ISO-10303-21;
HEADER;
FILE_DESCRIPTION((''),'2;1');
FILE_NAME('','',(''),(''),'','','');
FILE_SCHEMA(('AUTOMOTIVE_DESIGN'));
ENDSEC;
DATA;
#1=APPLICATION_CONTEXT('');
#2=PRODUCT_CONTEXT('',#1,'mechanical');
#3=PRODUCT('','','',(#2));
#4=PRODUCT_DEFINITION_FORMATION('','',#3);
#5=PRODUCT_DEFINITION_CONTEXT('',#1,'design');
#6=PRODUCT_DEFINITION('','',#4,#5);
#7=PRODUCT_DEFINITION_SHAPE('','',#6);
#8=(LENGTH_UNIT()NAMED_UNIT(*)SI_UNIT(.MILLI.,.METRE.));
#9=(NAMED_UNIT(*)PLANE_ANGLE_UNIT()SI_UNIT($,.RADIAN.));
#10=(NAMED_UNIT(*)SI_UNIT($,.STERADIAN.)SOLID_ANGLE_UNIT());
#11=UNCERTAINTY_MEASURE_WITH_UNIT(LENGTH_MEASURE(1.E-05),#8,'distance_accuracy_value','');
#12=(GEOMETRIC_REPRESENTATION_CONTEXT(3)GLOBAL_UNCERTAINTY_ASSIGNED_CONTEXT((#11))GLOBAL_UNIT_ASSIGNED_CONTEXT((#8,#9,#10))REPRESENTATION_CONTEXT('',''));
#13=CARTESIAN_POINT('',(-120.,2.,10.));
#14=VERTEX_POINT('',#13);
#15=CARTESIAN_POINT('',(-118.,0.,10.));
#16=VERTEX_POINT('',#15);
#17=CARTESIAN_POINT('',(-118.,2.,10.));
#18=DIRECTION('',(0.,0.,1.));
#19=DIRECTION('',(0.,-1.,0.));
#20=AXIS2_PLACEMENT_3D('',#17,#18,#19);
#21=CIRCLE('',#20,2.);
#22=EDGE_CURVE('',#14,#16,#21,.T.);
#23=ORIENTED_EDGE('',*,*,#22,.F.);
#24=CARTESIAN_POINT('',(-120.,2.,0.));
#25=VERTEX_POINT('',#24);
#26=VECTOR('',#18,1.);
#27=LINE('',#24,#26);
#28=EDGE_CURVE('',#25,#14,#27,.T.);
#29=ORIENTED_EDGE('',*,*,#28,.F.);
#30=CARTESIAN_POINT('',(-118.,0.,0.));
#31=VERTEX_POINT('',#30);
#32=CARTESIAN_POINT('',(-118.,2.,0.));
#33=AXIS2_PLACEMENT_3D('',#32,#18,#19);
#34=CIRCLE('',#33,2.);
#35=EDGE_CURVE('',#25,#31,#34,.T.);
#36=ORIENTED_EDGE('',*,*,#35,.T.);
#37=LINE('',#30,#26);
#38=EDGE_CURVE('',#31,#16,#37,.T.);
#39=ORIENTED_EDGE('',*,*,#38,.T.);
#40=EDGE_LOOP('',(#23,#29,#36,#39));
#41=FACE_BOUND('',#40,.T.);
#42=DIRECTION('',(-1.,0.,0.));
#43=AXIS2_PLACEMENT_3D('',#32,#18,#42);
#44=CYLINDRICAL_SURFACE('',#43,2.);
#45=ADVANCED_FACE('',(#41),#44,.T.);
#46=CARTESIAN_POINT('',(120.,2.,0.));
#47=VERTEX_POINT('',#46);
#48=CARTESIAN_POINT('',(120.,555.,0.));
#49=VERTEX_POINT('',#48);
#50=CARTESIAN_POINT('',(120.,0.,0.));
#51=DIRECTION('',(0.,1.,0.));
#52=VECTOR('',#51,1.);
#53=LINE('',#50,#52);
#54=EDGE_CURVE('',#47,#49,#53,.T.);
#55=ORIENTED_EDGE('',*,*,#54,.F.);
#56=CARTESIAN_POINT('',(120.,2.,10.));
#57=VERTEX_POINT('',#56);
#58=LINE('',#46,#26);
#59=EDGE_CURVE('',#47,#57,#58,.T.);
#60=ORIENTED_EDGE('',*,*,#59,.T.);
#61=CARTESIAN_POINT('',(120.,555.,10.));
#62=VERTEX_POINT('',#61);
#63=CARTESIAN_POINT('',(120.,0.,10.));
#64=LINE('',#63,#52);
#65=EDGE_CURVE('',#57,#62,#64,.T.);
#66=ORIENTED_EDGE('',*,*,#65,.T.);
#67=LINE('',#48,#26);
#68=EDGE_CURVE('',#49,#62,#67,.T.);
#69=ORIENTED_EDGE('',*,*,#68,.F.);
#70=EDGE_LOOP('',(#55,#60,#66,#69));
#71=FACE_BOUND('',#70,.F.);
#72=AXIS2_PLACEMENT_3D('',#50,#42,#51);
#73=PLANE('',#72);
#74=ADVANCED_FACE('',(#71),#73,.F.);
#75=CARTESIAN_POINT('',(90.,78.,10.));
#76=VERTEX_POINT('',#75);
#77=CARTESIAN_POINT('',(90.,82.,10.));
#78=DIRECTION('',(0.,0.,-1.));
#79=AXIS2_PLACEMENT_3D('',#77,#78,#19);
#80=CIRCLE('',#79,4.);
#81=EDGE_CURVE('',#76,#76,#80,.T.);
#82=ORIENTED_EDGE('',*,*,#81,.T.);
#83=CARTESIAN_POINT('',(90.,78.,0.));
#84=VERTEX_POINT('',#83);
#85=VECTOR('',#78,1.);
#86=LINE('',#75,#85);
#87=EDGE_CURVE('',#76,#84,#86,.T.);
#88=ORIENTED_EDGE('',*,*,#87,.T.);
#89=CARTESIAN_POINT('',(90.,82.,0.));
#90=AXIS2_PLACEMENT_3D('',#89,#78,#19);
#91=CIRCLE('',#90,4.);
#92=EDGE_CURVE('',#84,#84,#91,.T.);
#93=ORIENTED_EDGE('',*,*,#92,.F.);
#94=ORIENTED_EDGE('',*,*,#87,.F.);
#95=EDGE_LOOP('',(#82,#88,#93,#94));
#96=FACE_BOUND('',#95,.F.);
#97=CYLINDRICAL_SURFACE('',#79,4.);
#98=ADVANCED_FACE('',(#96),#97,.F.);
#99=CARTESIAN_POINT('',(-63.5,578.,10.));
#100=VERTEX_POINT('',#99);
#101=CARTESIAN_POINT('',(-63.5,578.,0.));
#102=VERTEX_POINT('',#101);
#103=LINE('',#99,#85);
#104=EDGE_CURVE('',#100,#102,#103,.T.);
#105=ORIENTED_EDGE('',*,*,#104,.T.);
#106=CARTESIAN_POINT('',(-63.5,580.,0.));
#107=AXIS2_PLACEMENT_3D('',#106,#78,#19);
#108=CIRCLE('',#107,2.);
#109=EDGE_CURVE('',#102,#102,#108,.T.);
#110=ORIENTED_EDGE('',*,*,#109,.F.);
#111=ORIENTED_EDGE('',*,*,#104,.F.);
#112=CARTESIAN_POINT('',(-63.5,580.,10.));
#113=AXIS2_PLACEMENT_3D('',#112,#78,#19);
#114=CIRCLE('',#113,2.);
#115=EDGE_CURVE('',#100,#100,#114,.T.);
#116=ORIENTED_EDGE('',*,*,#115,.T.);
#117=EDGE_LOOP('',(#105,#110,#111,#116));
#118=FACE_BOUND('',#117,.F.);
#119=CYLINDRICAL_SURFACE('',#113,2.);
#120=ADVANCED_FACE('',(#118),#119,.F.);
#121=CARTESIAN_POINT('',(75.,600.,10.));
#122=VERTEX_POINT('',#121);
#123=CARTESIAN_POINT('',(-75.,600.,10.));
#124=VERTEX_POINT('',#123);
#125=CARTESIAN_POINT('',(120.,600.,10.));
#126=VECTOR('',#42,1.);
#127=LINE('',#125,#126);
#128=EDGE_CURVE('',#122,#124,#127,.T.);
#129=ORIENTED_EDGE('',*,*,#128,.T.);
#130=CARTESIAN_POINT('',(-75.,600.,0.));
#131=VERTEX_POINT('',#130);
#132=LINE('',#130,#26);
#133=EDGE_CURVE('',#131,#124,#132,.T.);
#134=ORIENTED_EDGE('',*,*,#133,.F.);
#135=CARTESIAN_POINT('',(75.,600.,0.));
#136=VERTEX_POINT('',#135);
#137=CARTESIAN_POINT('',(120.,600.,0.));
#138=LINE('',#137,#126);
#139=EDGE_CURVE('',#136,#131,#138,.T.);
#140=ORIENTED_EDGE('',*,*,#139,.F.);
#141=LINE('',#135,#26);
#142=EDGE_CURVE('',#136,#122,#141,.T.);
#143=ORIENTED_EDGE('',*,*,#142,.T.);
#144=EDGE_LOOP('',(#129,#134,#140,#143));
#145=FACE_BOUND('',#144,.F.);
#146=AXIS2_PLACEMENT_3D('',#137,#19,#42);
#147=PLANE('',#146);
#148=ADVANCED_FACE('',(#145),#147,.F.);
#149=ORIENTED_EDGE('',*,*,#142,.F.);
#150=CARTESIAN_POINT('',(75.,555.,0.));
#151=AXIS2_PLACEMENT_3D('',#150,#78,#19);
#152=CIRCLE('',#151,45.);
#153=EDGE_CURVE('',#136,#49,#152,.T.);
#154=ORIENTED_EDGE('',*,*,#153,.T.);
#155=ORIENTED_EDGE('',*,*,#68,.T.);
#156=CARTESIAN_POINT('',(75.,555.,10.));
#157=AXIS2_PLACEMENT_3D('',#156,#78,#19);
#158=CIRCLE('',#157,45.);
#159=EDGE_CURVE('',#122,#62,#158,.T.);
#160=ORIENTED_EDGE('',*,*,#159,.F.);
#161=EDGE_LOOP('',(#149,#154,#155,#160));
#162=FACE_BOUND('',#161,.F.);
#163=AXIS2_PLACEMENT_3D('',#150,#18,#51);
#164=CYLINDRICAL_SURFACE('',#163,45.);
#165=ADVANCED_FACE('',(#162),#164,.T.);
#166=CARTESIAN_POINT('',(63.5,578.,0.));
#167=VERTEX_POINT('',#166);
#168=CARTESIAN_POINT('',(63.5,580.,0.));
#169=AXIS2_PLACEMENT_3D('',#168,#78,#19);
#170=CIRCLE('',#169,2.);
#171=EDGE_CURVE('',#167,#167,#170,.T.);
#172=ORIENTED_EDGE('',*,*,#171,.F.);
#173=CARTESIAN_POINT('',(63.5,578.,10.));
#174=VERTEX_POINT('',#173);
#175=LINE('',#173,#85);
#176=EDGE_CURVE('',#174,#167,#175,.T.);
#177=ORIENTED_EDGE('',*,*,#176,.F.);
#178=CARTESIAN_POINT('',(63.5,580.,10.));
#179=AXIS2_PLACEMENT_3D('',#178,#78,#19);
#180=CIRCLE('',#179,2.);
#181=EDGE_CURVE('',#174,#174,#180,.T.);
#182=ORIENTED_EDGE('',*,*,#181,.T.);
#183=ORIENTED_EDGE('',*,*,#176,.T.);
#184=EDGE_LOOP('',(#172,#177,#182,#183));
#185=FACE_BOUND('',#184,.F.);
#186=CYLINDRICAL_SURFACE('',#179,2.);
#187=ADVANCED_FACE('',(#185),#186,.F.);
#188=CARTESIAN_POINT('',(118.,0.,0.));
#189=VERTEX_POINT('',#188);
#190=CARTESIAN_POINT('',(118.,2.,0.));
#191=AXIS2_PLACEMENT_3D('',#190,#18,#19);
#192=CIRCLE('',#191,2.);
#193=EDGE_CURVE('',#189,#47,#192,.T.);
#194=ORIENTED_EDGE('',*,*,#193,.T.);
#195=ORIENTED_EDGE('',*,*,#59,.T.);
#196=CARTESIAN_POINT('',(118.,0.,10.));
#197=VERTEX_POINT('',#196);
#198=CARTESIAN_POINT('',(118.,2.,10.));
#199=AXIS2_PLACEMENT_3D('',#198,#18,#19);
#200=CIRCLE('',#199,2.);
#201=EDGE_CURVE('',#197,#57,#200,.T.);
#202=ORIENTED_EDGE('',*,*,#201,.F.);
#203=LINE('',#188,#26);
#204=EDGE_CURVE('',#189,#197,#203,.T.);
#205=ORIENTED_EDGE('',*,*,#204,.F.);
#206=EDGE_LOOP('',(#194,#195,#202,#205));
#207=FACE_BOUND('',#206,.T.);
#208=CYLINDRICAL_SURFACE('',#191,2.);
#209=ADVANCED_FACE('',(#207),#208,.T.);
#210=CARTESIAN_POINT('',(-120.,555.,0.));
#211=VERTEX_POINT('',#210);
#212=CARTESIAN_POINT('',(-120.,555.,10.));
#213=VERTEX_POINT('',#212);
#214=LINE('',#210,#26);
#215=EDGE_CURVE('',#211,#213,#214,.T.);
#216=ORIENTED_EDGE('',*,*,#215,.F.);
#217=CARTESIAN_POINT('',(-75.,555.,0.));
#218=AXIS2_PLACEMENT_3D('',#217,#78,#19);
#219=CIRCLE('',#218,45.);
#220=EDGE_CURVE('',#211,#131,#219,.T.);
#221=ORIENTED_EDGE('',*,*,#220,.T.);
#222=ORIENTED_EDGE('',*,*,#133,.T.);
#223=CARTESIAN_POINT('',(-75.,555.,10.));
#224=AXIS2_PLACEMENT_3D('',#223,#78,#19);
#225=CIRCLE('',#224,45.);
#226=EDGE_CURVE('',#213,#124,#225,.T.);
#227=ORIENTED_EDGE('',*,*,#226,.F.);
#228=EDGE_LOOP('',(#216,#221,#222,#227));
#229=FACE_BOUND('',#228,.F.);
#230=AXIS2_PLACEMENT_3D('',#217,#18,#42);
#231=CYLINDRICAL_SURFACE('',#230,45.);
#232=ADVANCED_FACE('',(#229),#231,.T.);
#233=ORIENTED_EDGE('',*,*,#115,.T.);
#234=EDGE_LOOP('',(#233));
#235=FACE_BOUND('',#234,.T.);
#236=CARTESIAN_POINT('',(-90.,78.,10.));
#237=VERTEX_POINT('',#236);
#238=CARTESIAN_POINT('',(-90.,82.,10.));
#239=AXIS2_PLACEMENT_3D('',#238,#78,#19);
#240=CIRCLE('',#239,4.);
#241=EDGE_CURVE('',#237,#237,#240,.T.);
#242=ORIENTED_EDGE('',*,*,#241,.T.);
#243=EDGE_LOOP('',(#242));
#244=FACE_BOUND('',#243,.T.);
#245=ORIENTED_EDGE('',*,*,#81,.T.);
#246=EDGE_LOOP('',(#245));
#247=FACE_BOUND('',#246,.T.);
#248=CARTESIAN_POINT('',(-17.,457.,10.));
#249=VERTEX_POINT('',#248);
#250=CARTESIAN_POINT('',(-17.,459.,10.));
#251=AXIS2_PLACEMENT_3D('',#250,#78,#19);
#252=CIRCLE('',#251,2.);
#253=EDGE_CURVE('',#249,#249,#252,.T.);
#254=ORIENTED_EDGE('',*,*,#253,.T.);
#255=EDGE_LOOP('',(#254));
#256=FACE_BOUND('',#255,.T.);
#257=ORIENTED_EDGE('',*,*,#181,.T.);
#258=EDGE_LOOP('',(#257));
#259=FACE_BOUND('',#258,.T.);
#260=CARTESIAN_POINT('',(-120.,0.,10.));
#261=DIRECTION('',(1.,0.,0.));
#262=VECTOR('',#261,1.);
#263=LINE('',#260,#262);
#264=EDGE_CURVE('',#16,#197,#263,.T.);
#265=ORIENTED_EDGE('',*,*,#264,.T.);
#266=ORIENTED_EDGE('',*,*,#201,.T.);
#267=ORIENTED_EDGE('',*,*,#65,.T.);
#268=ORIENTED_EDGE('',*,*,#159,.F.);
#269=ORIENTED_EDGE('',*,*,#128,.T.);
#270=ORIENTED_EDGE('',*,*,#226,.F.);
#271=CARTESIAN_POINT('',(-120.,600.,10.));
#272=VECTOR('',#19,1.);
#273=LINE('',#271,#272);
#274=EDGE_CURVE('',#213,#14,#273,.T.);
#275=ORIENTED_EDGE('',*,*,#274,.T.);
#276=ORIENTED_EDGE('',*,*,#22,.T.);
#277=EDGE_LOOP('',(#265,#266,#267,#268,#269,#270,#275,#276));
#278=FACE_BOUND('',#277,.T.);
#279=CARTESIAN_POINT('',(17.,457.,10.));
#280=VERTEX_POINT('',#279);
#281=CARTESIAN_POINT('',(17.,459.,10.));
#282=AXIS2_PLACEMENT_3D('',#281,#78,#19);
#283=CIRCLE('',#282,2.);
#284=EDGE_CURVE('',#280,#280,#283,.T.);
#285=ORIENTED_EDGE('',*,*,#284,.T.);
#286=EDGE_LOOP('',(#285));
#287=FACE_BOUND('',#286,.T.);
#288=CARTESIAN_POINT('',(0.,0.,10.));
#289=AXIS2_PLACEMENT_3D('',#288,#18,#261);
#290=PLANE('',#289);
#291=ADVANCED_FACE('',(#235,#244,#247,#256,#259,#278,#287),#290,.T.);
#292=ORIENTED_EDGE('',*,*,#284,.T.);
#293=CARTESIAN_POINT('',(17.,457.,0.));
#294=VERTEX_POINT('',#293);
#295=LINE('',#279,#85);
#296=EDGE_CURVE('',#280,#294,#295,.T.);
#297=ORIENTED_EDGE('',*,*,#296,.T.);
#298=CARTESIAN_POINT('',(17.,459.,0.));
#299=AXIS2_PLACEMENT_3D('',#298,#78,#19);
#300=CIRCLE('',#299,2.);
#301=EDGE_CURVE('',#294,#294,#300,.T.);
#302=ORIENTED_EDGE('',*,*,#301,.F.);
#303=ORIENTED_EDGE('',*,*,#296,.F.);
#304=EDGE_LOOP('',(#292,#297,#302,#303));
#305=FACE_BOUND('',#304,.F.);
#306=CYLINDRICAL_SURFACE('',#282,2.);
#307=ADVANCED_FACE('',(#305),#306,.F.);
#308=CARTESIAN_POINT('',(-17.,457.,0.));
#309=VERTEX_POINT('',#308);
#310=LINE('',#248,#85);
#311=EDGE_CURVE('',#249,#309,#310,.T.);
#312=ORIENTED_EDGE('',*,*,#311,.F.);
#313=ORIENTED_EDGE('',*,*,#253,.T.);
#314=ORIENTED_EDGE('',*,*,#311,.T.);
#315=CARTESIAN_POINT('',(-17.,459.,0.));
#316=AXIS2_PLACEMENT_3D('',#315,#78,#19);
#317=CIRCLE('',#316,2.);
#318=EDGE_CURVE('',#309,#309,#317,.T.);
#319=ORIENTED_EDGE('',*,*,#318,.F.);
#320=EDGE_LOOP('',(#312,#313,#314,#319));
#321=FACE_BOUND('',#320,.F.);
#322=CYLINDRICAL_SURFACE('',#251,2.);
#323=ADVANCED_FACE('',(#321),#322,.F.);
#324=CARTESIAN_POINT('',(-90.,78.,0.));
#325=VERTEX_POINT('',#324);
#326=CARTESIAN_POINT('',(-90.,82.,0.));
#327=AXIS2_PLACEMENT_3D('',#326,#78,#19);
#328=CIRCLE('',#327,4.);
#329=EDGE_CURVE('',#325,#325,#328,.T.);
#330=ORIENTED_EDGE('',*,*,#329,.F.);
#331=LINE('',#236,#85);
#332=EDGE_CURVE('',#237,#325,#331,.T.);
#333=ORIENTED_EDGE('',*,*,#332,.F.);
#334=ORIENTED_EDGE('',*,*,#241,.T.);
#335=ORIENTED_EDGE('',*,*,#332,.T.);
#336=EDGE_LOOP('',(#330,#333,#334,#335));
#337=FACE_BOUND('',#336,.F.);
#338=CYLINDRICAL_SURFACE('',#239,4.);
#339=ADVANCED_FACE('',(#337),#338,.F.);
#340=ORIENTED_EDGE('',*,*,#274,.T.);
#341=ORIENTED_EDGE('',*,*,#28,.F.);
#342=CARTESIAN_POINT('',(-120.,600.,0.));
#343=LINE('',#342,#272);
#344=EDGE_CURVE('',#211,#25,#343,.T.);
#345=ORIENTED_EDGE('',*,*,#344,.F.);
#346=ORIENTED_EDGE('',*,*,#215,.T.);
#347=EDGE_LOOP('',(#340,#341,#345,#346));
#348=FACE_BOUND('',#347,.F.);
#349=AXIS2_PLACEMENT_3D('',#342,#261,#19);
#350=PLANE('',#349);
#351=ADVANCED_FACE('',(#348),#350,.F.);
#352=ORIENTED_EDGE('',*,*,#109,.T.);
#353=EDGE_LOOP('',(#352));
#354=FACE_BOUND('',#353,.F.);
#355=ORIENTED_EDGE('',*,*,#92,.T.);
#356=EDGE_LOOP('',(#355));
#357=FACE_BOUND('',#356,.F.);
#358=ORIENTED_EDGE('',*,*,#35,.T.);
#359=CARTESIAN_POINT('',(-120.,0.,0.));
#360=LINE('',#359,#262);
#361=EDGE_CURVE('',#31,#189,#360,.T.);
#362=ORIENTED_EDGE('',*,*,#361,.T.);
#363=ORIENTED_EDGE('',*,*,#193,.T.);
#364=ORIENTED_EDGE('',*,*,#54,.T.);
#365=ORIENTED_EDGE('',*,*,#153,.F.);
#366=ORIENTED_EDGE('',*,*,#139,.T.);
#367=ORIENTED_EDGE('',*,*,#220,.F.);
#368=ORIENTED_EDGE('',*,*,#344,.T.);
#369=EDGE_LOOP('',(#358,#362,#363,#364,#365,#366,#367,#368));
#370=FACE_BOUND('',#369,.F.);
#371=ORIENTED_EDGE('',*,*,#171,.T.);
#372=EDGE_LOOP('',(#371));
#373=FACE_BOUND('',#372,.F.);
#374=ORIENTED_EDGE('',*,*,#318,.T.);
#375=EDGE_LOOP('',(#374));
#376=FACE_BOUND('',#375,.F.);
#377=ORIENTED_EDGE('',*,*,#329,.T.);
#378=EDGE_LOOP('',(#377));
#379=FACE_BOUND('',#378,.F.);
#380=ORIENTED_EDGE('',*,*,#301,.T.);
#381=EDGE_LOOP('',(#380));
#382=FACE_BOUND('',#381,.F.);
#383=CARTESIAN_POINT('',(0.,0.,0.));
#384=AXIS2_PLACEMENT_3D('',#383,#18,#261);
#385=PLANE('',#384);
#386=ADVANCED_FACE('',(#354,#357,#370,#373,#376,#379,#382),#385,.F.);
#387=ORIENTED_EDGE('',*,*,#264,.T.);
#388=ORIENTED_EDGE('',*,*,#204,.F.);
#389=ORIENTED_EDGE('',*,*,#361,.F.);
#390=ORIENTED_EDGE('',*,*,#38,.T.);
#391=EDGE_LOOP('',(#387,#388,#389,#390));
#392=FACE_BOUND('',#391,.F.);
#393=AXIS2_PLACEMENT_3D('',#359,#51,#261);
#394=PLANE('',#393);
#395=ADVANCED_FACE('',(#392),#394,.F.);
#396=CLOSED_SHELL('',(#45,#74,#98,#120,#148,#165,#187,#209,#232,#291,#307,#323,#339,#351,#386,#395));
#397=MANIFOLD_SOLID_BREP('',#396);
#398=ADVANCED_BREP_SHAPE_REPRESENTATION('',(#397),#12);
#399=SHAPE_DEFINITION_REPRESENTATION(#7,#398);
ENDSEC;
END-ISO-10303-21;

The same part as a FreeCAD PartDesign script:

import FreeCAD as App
import Part
import Sketcher
Q = App.Units.Quantity


def edges_at(feature, points):
    """Names of the edges that pass closest to the given points."""
    edges = feature.Shape.Edges
    near = lambda p: min(range(len(edges)), key=lambda i: edges[i].distToShape(Part.Vertex(*p))[0])
    return sorted({f"Edge{near(p) + 1}" for p in points})

doc = App.newDocument("Part")
params = doc.addObject("Spreadsheet::Sheet", "Params")
for row, (alias, value) in enumerate([
    ("sketch1_width", "240 mm"),
    ("sketch1_height", "600 mm"),
    ("pad1_length", "10 mm"),
    ("fillet_radius", "45 mm"),
    ("sketch2_diameter", "8 mm"),
    ("hole_diameter", "8 mm"),
    ("hole_depth", "60 mm"),
    ("sketch3_diameter", "4 mm"),
    ("hole2_diameter", "4 mm"),
    ("fillet2_radius", "2 mm"),
], start=1):
    params.set(f"A{row}", alias)
    params.set(f"B{row}", "=" + value)
    params.setAlias(f"B{row}", alias)

body = doc.addObject("PartDesign::Body", "Body")

# Sketch on XY plane
sketch1 = body.newObject("Sketcher::SketchObject", "Sketch")
sketch1.AttachmentSupport = (doc.getObject("XY_Plane"), [""])
sketch1.MapMode = "FlatFace"
sketch1.addGeometry([
    Part.LineSegment(App.Vector(-120, 600, 0), App.Vector(-120, 0, 0)),
    Part.LineSegment(App.Vector(-120, 0, 0), App.Vector(120, 0, 0)),
    Part.LineSegment(App.Vector(120, 0, 0), App.Vector(120, 600, 0)),
    Part.LineSegment(App.Vector(120, 600, 0), App.Vector(-120, 600, 0)),
], False)
sketch1.addConstraint([
    Sketcher.Constraint("Coincident", 0, 2, 1, 1),
    Sketcher.Constraint("Coincident", 1, 2, 2, 1),
    Sketcher.Constraint("Coincident", 2, 2, 3, 1),
    Sketcher.Constraint("Coincident", 3, 2, 0, 1),
    Sketcher.Constraint("Vertical", 0),
    Sketcher.Constraint("Horizontal", 1),
    Sketcher.Constraint("Vertical", 2),
    Sketcher.Constraint("Horizontal", 3),
    Sketcher.Constraint("Symmetric", 0, 2, 1, 2, -1, 1),
    Sketcher.Constraint("DistanceX", 1, 1, 1, 2, Q("240 mm")),
    Sketcher.Constraint("DistanceY", 0, 2, 0, 1, Q("600 mm")),
])
sketch1.setExpression("Constraints[9]", "Params.sketch1_width")
sketch1.setExpression("Constraints[10]", "Params.sketch1_height")
pad1 = body.newObject("PartDesign::Pad", "Pad")
pad1.Profile = sketch1
pad1.setExpression("Length", "Params.pad1_length")
doc.recompute()

fillet = body.newObject("PartDesign::Fillet", "Fillet")
fillet.Base = (pad1, edges_at(pad1, [(120, 600, 5), (-120, 600, 5)]))
fillet.setExpression("Radius", "Params.fillet_radius")

# Sketch on XY plane
sketch2 = body.newObject("Sketcher::SketchObject", "Sketch001")
sketch2.AttachmentSupport = (doc.getObject("XY_Plane"), [""])
sketch2.MapMode = "FlatFace"
sketch2.AttachmentOffset = App.Placement(App.Vector(0, 0, 10), App.Rotation())
sketch2.addGeometry([
    Part.Circle(App.Vector(-90, 82, 0), App.Vector(0, 0, 1), 4),
    Part.Circle(App.Vector(90, 82, 0), App.Vector(0, 0, 1), 4),
], False)
sketch2.addConstraint([
    Sketcher.Constraint("Equal", 0, 1),
    Sketcher.Constraint("Symmetric", 0, 3, 1, 3, -2),
    Sketcher.Constraint("Diameter", 0, Q("8 mm")),
    Sketcher.Constraint("DistanceX", 0, 3, -1, 1, Q("90 mm")),
    Sketcher.Constraint("DistanceY", -1, 1, 0, 3, Q("82 mm")),
])
sketch2.setExpression("Constraints[2]", "Params.sketch2_diameter")
doc.recompute()
hole = body.newObject("PartDesign::Hole", "Hole")
hole.Profile = sketch2
hole.ThreadType = "None"
hole.setExpression("Diameter", "Params.hole_diameter")
hole.DepthType = "Dimension"
hole.setExpression("Depth", "Params.hole_depth")
hole.DrillPoint = "Flat"

# Sketch on XY plane
sketch3 = body.newObject("Sketcher::SketchObject", "Sketch002")
sketch3.AttachmentSupport = (doc.getObject("XY_Plane"), [""])
sketch3.MapMode = "FlatFace"
sketch3.AttachmentOffset = App.Placement(App.Vector(0, 0, 10), App.Rotation())
sketch3.addGeometry([
    Part.Circle(App.Vector(17, 459, 0), App.Vector(0, 0, 1), 2),
    Part.Circle(App.Vector(-17, 459, 0), App.Vector(0, 0, 1), 2),
    Part.Circle(App.Vector(63.5, 580, 0), App.Vector(0, 0, 1), 2),
    Part.Circle(App.Vector(-63.5, 580, 0), App.Vector(0, 0, 1), 2),
], False)
sketch3.addConstraint([
    Sketcher.Constraint("Equal", 0, 1),
    Sketcher.Constraint("Equal", 1, 2),
    Sketcher.Constraint("Equal", 2, 3),
    Sketcher.Constraint("Symmetric", 0, 3, 1, 3, -2),
    Sketcher.Constraint("Symmetric", 2, 3, 3, 3, -2),
    Sketcher.Constraint("Diameter", 0, Q("4 mm")),
    Sketcher.Constraint("DistanceX", -1, 1, 0, 3, Q("17 mm")),
    Sketcher.Constraint("DistanceY", -1, 1, 0, 3, Q("459 mm")),
    Sketcher.Constraint("DistanceY", -1, 1, 2, 3, Q("580 mm")),
    Sketcher.Constraint("DistanceX", 3, 3, 2, 3, Q("127 mm")),
])
sketch3.setExpression("Constraints[5]", "Params.sketch3_diameter")
doc.recompute()
hole2 = body.newObject("PartDesign::Hole", "Hole001")
hole2.Profile = sketch3
hole2.ThreadType = "None"
hole2.setExpression("Diameter", "Params.hole2_diameter")
hole2.DepthType = "ThroughAll"
doc.recompute()

fillet2 = body.newObject("PartDesign::Fillet", "Fillet001")
fillet2.Base = (hole2, edges_at(hole2, [(-120, 0, 5), (120, 0, 5)]))
fillet2.setExpression("Radius", "Params.fillet2_radius")

doc.recompute()
